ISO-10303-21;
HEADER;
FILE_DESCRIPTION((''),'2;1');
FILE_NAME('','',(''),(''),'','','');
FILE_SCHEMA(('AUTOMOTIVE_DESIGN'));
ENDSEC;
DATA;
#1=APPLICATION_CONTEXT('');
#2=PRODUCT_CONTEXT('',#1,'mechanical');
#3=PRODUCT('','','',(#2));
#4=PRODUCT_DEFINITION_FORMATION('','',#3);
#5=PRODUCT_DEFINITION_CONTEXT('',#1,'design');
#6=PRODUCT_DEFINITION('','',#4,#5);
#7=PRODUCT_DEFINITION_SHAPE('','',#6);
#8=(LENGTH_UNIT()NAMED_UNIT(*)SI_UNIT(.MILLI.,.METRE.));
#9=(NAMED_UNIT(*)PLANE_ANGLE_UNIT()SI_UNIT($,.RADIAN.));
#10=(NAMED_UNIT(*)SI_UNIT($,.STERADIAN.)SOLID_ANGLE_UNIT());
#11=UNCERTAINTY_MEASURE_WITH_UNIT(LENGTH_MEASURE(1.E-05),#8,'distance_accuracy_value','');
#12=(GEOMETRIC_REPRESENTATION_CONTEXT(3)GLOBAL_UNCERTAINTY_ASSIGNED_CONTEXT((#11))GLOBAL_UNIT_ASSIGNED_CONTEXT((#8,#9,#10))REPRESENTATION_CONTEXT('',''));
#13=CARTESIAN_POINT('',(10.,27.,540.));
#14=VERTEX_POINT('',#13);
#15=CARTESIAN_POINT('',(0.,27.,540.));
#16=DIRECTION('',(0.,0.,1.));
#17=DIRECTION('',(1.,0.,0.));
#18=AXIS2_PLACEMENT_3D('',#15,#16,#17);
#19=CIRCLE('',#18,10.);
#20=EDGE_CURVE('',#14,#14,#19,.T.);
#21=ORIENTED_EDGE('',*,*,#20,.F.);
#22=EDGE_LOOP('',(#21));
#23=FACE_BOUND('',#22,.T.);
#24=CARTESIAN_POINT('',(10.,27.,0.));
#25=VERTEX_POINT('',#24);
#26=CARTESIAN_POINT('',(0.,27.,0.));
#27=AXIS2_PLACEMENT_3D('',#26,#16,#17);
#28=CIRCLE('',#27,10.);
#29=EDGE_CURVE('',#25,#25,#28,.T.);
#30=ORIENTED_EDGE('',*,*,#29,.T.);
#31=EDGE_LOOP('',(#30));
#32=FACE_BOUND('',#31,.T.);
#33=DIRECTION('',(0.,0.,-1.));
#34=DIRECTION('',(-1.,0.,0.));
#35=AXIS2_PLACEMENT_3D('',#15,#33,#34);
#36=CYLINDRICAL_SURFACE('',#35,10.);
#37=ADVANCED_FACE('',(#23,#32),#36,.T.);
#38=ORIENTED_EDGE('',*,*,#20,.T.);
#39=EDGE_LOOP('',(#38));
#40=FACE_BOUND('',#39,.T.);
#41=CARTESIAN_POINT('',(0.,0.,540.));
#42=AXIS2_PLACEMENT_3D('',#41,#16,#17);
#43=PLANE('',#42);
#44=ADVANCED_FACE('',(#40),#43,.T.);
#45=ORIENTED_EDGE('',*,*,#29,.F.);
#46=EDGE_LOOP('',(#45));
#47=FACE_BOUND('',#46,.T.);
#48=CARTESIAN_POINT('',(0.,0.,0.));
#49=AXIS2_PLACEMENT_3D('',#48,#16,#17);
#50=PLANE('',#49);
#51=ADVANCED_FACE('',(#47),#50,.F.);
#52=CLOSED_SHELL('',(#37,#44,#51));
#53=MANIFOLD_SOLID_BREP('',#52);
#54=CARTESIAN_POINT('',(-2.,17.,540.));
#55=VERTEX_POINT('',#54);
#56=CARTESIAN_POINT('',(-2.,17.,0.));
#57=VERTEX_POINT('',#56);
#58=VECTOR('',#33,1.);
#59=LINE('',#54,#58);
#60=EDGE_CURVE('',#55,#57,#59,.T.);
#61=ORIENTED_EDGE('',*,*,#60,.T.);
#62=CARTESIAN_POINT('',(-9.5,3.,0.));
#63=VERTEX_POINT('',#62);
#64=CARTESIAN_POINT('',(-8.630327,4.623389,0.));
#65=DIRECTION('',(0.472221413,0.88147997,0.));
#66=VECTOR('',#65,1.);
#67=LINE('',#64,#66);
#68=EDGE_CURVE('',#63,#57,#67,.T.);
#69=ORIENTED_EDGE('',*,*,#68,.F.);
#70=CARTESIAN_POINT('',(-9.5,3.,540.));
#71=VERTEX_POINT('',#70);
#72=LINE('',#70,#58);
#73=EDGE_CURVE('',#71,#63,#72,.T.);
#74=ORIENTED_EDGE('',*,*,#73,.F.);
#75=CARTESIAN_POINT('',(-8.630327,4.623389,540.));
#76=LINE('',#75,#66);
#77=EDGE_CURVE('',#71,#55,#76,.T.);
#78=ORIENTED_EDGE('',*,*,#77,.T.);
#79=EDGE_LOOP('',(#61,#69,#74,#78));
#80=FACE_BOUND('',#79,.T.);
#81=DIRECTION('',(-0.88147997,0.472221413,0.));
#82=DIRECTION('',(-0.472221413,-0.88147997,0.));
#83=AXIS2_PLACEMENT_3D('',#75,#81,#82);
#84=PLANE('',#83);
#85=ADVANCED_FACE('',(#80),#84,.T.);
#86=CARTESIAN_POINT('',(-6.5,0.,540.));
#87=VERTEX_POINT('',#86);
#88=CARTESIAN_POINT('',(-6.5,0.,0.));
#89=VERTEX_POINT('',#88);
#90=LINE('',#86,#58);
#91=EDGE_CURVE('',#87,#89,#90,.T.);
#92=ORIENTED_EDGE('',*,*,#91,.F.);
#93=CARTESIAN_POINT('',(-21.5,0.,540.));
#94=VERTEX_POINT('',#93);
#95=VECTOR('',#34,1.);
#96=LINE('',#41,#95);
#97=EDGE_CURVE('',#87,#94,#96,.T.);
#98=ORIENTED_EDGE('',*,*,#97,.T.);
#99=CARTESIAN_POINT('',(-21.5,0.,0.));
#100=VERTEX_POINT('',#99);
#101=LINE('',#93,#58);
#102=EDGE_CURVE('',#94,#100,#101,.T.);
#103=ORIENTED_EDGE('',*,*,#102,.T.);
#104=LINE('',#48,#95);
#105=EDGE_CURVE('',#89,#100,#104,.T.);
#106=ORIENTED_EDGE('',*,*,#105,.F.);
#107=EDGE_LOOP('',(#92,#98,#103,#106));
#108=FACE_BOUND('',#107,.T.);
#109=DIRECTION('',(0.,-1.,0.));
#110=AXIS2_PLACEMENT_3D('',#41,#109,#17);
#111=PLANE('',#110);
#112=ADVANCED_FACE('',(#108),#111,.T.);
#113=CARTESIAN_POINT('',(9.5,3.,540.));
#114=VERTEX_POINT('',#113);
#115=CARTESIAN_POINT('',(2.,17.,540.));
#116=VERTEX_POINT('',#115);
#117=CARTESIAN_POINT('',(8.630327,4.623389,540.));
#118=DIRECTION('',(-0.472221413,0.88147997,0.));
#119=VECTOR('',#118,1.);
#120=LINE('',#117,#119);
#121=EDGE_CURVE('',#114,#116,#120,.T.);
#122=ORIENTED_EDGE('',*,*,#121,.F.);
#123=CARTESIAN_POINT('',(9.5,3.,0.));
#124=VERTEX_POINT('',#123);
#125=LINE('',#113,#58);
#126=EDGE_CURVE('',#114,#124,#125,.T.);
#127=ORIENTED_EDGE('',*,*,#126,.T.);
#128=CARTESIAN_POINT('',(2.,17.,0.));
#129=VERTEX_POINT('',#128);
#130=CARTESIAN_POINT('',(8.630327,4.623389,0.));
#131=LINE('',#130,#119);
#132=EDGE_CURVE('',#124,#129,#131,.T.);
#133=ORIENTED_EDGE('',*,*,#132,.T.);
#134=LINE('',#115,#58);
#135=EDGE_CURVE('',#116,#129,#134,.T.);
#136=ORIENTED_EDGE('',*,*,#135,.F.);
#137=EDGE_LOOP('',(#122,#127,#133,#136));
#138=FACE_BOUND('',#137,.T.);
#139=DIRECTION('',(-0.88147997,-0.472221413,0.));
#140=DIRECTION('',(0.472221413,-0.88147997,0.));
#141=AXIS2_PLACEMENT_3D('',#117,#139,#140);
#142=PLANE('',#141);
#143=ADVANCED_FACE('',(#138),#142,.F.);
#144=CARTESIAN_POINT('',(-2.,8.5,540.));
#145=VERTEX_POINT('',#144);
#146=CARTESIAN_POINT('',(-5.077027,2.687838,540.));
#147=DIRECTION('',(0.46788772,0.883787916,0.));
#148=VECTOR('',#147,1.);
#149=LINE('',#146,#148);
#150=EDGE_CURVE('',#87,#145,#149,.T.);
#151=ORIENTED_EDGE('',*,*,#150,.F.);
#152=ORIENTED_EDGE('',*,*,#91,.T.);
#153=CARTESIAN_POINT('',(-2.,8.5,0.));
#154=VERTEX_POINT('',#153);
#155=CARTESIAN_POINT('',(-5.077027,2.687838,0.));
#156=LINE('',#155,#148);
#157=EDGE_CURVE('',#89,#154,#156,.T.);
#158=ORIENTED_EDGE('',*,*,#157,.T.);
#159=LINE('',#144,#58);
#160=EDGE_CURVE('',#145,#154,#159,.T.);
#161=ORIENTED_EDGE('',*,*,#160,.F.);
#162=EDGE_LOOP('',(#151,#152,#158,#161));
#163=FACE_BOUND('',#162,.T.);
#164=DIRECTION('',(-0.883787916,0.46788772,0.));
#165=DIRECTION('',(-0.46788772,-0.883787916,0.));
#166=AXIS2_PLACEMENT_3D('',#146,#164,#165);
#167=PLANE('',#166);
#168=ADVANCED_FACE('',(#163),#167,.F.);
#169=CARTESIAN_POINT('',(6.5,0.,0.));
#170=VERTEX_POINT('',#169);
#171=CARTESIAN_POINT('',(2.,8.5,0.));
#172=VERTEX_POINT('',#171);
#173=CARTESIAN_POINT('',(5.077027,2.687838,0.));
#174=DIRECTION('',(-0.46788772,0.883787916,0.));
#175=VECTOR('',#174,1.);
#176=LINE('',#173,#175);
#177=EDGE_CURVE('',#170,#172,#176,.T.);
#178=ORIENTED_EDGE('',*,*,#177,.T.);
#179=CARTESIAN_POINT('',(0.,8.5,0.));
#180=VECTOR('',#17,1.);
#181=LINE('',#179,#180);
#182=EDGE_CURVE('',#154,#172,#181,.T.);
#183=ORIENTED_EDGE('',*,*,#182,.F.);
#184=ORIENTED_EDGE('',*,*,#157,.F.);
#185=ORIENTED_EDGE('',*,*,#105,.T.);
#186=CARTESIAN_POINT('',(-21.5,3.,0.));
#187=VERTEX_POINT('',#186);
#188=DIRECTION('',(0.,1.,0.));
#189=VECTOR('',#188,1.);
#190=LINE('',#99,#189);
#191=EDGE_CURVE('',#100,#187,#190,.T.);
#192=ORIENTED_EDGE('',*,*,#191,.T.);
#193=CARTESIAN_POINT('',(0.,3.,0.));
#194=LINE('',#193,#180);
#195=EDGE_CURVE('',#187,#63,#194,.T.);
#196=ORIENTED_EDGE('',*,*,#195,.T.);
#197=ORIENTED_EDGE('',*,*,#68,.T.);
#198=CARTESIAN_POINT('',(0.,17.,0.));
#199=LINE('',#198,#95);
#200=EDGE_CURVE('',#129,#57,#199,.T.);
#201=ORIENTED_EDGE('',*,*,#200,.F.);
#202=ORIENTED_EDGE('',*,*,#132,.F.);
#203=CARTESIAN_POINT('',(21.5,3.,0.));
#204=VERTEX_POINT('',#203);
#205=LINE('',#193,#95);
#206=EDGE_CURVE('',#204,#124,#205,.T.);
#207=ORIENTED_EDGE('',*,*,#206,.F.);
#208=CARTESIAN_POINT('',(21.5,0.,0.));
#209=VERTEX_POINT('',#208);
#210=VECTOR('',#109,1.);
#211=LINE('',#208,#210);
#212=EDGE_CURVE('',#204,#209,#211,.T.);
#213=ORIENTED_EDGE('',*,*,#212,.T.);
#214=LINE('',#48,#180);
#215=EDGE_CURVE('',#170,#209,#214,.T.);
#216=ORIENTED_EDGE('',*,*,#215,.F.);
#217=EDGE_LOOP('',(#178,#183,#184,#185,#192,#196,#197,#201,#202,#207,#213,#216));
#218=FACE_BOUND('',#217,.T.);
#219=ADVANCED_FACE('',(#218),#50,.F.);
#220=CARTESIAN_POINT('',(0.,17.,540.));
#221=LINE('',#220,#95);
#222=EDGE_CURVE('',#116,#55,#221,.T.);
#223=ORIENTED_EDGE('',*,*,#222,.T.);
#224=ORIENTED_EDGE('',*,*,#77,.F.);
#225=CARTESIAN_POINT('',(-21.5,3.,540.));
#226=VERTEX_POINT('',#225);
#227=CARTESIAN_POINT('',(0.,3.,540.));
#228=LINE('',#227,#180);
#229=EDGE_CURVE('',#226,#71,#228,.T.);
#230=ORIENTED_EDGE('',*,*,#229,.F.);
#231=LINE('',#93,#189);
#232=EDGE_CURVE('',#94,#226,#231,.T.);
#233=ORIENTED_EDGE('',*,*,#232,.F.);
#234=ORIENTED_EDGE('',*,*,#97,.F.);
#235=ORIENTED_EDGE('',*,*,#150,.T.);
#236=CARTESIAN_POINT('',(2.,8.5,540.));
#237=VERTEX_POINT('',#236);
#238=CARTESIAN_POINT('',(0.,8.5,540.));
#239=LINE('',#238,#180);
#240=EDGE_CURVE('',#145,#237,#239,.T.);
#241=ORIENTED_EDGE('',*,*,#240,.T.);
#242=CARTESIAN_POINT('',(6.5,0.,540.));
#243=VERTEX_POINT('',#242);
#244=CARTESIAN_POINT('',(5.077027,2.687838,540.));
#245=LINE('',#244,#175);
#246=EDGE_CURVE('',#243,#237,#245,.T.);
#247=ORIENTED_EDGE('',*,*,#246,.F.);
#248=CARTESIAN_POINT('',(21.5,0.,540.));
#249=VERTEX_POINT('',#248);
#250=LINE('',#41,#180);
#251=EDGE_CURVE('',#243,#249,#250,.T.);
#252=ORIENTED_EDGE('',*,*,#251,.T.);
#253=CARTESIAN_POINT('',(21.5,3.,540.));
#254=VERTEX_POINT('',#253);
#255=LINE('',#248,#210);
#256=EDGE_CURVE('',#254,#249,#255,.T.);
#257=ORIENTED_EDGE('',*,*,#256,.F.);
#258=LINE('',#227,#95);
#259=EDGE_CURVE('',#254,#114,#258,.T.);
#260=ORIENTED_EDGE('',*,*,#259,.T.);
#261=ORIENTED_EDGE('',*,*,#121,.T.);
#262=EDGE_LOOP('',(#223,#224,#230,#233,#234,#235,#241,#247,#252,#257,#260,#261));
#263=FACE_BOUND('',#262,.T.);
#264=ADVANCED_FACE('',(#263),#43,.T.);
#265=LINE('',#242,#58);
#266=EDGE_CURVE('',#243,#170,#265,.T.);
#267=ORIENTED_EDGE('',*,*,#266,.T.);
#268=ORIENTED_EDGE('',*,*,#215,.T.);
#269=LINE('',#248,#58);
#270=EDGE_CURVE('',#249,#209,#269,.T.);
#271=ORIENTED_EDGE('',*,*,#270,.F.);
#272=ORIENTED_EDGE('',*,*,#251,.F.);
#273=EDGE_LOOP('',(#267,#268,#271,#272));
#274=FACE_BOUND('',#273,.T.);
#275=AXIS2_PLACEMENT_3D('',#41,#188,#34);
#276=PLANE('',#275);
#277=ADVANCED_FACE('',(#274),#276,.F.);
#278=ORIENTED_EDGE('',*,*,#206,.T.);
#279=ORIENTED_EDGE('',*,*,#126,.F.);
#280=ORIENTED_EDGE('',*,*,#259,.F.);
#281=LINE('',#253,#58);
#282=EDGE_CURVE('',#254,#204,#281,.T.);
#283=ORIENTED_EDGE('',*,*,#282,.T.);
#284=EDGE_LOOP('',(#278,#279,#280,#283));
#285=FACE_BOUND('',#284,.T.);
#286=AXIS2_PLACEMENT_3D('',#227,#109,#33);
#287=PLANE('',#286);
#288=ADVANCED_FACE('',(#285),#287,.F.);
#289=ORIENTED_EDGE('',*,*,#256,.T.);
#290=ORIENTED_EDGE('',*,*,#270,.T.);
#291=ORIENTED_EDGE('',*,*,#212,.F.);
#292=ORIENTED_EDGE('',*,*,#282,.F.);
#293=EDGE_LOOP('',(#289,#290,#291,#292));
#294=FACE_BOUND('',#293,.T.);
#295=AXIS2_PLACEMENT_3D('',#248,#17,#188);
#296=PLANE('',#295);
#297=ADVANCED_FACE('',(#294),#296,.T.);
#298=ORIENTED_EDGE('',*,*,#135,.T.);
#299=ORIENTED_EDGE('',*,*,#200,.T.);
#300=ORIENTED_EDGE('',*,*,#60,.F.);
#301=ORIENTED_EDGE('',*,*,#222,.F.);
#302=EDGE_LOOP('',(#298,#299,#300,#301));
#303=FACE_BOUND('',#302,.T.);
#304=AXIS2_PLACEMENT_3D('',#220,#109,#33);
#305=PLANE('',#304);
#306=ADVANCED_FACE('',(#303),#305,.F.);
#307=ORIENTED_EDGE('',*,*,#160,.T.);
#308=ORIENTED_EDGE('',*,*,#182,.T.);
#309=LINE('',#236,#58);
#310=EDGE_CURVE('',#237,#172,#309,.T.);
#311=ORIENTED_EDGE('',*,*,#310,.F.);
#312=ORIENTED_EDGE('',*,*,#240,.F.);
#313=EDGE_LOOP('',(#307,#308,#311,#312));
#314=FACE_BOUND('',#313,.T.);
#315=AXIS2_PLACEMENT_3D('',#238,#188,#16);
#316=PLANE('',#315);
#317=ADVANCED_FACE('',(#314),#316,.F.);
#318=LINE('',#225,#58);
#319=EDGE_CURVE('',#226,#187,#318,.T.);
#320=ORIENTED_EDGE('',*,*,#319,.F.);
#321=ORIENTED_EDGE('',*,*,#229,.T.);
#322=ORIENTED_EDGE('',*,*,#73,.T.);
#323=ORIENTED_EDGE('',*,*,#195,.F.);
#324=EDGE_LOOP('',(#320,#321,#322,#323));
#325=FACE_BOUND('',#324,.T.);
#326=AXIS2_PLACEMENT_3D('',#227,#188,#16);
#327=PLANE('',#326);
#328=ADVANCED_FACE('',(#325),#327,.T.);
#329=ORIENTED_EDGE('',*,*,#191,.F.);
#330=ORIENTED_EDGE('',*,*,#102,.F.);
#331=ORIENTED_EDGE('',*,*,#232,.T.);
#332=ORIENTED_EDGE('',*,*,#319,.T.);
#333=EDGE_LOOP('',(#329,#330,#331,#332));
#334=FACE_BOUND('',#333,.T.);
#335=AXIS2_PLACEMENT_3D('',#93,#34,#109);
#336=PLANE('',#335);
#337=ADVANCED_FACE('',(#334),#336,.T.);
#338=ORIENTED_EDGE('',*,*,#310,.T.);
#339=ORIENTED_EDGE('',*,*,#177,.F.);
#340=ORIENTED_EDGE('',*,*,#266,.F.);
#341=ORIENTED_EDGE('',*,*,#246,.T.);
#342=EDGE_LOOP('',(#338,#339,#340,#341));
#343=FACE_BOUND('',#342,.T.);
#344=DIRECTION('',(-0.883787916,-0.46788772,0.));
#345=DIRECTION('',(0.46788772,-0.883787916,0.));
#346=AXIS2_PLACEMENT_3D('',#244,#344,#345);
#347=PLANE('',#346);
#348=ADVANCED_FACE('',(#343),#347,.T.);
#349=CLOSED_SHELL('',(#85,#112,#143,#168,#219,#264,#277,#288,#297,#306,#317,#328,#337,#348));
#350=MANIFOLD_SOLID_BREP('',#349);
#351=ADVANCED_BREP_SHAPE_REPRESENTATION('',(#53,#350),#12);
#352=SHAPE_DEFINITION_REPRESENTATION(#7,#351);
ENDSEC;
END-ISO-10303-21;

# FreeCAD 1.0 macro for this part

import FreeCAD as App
import Part
import Sketcher

V = App.Vector
Q = App.Units.Quantity

doc = App.newDocument("Part")
body = doc.addObject("PartDesign::Body", "Body")

# Sketch on XY plane
sketch1 = body.newObject("Sketcher::SketchObject", "Sketch")
sketch1.AttachmentSupport = (doc.getObject("XY_Plane"), [""])
sketch1.MapMode = "FlatFace"
sketch1.addGeometry(Part.Circle(V(0, 27, 0), V(0, 0, 1), 10), False)
sketch1.addConstraint([
    Sketcher.Constraint("PointOnObject", 0, 3, -2),
    Sketcher.Constraint("Diameter", 0, Q("20 mm")),
    Sketcher.Constraint("DistanceY", -1, 1, 0, 3, Q("27 mm")),
])
pad1 = body.newObject("PartDesign::Pad", "Pad")
pad1.Profile = sketch1
pad1.Length = 540
body2 = doc.addObject("PartDesign::Body", "Body001")

# Sketch on XY plane
sketch2 = body2.newObject("Sketcher::SketchObject", "Sketch001")
sketch2.AttachmentSupport = (doc.getObject("XY_Plane001"), [""])
sketch2.MapMode = "FlatFace"
sketch2.addGeometry([
    Part.LineSegment(V(-21.5, 0, 0), V(-6.5, 0, 0)),  # 0
    Part.LineSegment(V(-6.5, 0, 0), V(-2, 8.5, 0)),  # 1
    Part.LineSegment(V(-2, 8.5, 0), V(2, 8.5, 0)),  # 2
    Part.LineSegment(V(2, 8.5, 0), V(6.5, 0, 0)),  # 3
    Part.LineSegment(V(6.5, 0, 0), V(21.5, 0, 0)),  # 4
    Part.LineSegment(V(21.5, 0, 0), V(21.5, 3, 0)),  # 5
    Part.LineSegment(V(21.5, 3, 0), V(9.5, 3, 0)),  # 6
    Part.LineSegment(V(9.5, 3, 0), V(2, 17, 0)),  # 7
    Part.LineSegment(V(2, 17, 0), V(-2, 17, 0)),  # 8
    Part.LineSegment(V(-2, 17, 0), V(-9.5, 3, 0)),  # 9
    Part.LineSegment(V(-9.5, 3, 0), V(-21.5, 3, 0)),  # 10
    Part.LineSegment(V(-21.5, 3, 0), V(-21.5, 0, 0)),  # 11
], False)
sketch2.addConstraint([
    Sketcher.Constraint("Coincident", 0, 2, 1, 1),
    Sketcher.Constraint("Coincident", 1, 2, 2, 1),
    Sketcher.Constraint("Coincident", 2, 2, 3, 1),
    Sketcher.Constraint("Coincident", 3, 2, 4, 1),
    Sketcher.Constraint("Coincident", 4, 2, 5, 1),
    Sketcher.Constraint("Coincident", 5, 2, 6, 1),
    Sketcher.Constraint("Coincident", 6, 2, 7, 1),
    Sketcher.Constraint("Coincident", 7, 2, 8, 1),
    Sketcher.Constraint("Coincident", 8, 2, 9, 1),
    Sketcher.Constraint("Coincident", 9, 2, 10, 1),
    Sketcher.Constraint("Coincident", 10, 2, 11, 1),
    Sketcher.Constraint("Coincident", 11, 2, 0, 1),
    Sketcher.Constraint("Horizontal", 0),
    Sketcher.Constraint("Horizontal", 2),
    Sketcher.Constraint("Horizontal", 4),
    Sketcher.Constraint("Vertical", 5),
    Sketcher.Constraint("Horizontal", 6),
    Sketcher.Constraint("Horizontal", 8),
    Sketcher.Constraint("Horizontal", 10),
    Sketcher.Constraint("Vertical", 11),
    Sketcher.Constraint("Symmetric", 0, 2, 3, 2, -1, 1),
    Sketcher.Constraint("Symmetric", 6, 2, 9, 2, -2),
    Sketcher.Constraint("Symmetric", 4, 2, 11, 2, -2),
    Sketcher.Constraint("Vertical", 2, 2, 7, 2),
    Sketcher.Constraint("Vertical", 1, 2, 8, 2),
    Sketcher.Constraint("Equal", 1, 3),
    Sketcher.Constraint("DistanceX", 0, 1, 0, 2, Q("15 mm")),
    Sketcher.Constraint("DistanceX", 2, 1, 2, 2, Q("4 mm")),
    Sketcher.Constraint("DistanceX", 6, 2, 6, 1, Q("12 mm")),
    Sketcher.Constraint("DistanceY", 5, 1, 5, 2, Q("3 mm")),
    Sketcher.Constraint("DistanceY", -1, 1, 7, 2, Q("17 mm")),
    Sketcher.Constraint("DistanceX", 0, 2, 3, 2, Q("13 mm")),
    Sketcher.Constraint("DistanceY", -1, 1, 1, 2, Q("8.5 mm")),
])
pad2 = body2.newObject("PartDesign::Pad", "Pad001")
pad2.Profile = sketch2
pad2.Length = 540

doc.recompute()
